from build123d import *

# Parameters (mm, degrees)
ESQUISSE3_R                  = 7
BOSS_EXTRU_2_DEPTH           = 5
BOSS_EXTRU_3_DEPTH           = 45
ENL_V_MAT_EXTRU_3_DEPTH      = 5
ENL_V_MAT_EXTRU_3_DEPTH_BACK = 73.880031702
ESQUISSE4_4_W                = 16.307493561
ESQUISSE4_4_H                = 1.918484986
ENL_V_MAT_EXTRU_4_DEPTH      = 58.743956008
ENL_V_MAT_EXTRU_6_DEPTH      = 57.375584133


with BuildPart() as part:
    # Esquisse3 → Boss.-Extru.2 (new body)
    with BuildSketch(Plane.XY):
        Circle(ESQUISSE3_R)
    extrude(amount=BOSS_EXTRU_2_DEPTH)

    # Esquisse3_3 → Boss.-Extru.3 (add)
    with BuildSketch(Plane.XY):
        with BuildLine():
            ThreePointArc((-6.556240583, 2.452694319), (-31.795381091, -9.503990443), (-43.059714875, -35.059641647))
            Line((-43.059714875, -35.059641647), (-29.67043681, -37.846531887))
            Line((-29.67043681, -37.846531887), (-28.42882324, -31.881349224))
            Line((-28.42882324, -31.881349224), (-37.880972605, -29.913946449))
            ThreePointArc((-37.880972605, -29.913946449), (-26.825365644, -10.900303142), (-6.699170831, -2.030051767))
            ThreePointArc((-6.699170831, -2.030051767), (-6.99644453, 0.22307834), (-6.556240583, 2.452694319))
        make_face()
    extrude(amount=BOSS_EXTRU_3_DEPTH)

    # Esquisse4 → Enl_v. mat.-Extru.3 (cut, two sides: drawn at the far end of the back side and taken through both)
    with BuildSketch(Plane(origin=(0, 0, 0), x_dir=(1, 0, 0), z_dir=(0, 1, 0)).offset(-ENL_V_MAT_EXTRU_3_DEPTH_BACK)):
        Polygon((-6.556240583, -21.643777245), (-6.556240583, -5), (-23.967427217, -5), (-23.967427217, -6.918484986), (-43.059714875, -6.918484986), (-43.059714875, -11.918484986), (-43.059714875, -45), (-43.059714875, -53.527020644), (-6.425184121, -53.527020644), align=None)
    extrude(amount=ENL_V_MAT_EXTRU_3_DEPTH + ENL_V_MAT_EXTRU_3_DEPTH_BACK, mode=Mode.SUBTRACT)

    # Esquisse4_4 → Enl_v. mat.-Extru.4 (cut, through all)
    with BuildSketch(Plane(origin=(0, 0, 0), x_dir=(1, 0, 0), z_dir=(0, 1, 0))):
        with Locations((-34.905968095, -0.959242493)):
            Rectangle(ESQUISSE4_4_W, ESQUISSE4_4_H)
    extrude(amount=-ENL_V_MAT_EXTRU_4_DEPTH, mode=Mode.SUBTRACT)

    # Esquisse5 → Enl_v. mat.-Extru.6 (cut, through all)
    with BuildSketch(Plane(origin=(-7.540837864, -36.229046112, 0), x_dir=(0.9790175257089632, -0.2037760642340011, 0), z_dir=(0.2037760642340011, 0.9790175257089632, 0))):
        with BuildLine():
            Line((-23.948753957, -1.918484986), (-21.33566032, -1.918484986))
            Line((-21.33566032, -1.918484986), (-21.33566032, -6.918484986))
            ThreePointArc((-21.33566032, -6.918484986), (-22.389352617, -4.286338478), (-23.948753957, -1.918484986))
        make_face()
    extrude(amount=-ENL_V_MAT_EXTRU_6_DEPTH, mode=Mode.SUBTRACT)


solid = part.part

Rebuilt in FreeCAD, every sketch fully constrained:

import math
import FreeCAD as App
import Part
import Sketcher
Q = App.Units.Quantity

doc = App.newDocument("Part")
params = doc.addObject("Spreadsheet::Sheet", "Params")
for row, (alias, value) in enumerate([
    ("sketch1_diameter", "14 mm"),
    ("pad1_length", "5 mm"),
    ("sketch2_radius", "40 mm"),
    ("sketch2_radius2", "7 mm"),
    ("pad2_length", "45 mm"),
    ("sketch5_height", "5 mm"),
], start=1):
    params.set(f"A{row}", alias)
    params.set(f"B{row}", "=" + value)
    params.setAlias(f"B{row}", alias)

body = doc.addObject("PartDesign::Body", "Body")

# Sketch on XY plane
sketch1 = doc.addObject("Sketcher::SketchObject", "Sketch")
body.addObject(sketch1)
sketch1.AttachmentSupport = (doc.XY_Plane, [""])
sketch1.MapMode = "FlatFace"
sketch1.addGeometry(Part.Circle(App.Vector(0, 0, 0), App.Vector(0, 0, 1), 7), False)
sketch1.addConstraint([
    Sketcher.Constraint("Coincident", 0, 3, -1, 1),
    Sketcher.Constraint("Diameter", 0, Q("14 mm")),
])
sketch1.setExpression("Constraints[1]", "Params.sketch1_diameter")
pad1 = doc.addObject("PartDesign::Pad", "Pad")
body.addObject(pad1)
pad1.Profile = sketch1
pad1.setExpression("Length", "Params.pad1_length")

# Sketch on XY plane
sketch2 = doc.addObject("Sketcher::SketchObject", "Sketch001")
body.addObject(sketch2)
sketch2.AttachmentSupport = (doc.XY_Plane, [""])
sketch2.MapMode = "FlatFace"
sketch2.addGeometry([
    Part.ArcOfCircle(Part.Circle(App.Vector(-3.1, -37.4, 0), App.Vector(0, 0, 1), 40), math.radians(95), math.radians(177)),  # 0
    Part.LineSegment(App.Vector(-43.1, -35.1, 0), App.Vector(-29.7, -37.8, 0)),  # 1
    Part.LineSegment(App.Vector(-29.7, -37.8, 0), App.Vector(-28.4, -31.9, 0)),  # 2
    Part.LineSegment(App.Vector(-28.4, -31.9, 0), App.Vector(-37.9, -29.9, 0)),  # 3
    Part.ArcOfCircle(Part.Circle(App.Vector(-3.1, -37.4, 0), App.Vector(0, 0, 1), 35.5), math.radians(96), math.radians(168)),  # 4
    Part.ArcOfCircle(Part.Circle(App.Vector(0, 0, 0), App.Vector(0, 0, 1), 7), math.radians(159), math.radians(197)),  # 5
], False)
sketch2.addConstraint([
    Sketcher.Constraint("Coincident", 0, 2, 1, 1),
    Sketcher.Constraint("Coincident", 1, 2, 2, 1),
    Sketcher.Constraint("Coincident", 2, 2, 3, 1),
    Sketcher.Constraint("Coincident", 3, 2, 4, 2),
    Sketcher.Constraint("Coincident", 4, 1, 5, 2),
    Sketcher.Constraint("Coincident", 5, 1, 0, 1),
    Sketcher.Constraint("Coincident", 5, 3, -1, 1),
    Sketcher.Constraint("Coincident", 4, 3, 0, 3),
    Sketcher.Constraint("Perpendicular", 1, 2),
    Sketcher.Constraint("Perpendicular", 2, 3),
    Sketcher.Constraint("Radius", 0, Q("40 mm")),
    Sketcher.Constraint("Radius", 5, Q("7 mm")),
    Sketcher.Constraint("Radius", 4, Q("35.549895 mm")),
    Sketcher.Constraint("DistanceY", 4, 3, 3, 2, Q("7.486199 mm")),
    Sketcher.Constraint("DistanceX", 3, 2, 4, 1, Q("31.181802 mm")),
    Sketcher.Constraint("Distance", 1, Q("13.676239 mm")),
    Sketcher.Constraint("Distance", 2, Q("6.093029 mm")),
    Sketcher.Constraint("Distance", 3, Q("9.654729 mm")),
    Sketcher.Constraint("DistanceX", 0, 3, -1, 1, Q("3.128248 mm")),
])
sketch2.setExpression("Constraints[10]", "Params.sketch2_radius")
sketch2.setExpression("Constraints[11]", "Params.sketch2_radius2")
pad2 = doc.addObject("PartDesign::Pad", "Pad001")
body.addObject(pad2)
pad2.Profile = sketch2
pad2.setExpression("Length", "Params.pad2_length")

# Sketch on XZ plane
sketch3 = doc.addObject("Sketcher::SketchObject", "Sketch002")
body.addObject(sketch3)
sketch3.AttachmentSupport = (doc.XZ_Plane, [""])
sketch3.MapMode = "FlatFace"
sketch3.addGeometry([
    Part.LineSegment(App.Vector(-6.6, 21.6, 0), App.Vector(-6.6, 5, 0)),  # 0
    Part.LineSegment(App.Vector(-6.6, 5, 0), App.Vector(-24, 5, 0)),  # 1
    Part.LineSegment(App.Vector(-24, 5, 0), App.Vector(-24, 6.9, 0)),  # 2
    Part.LineSegment(App.Vector(-24, 6.9, 0), App.Vector(-43.1, 6.9, 0)),  # 3
    Part.LineSegment(App.Vector(-43.1, 6.9, 0), App.Vector(-43.1, 53.5, 0)),  # 4
    Part.LineSegment(App.Vector(-43.1, 53.5, 0), App.Vector(-6.4, 53.5, 0)),  # 5
    Part.LineSegment(App.Vector(-6.4, 53.5, 0), App.Vector(-6.6, 21.6, 0)),  # 6
], False)
sketch3.addConstraint([
    Sketcher.Constraint("Coincident", 0, 2, 1, 1),
    Sketcher.Constraint("Coincident", 1, 2, 2, 1),
    Sketcher.Constraint("Coincident", 2, 2, 3, 1),
    Sketcher.Constraint("Coincident", 3, 2, 4, 1),
    Sketcher.Constraint("Coincident", 4, 2, 5, 1),
    Sketcher.Constraint("Coincident", 5, 2, 6, 1),
    Sketcher.Constraint("Coincident", 6, 2, 0, 1),
    Sketcher.Constraint("Vertical", 0),
    Sketcher.Constraint("Horizontal", 1),
    Sketcher.Constraint("Vertical", 2),
    Sketcher.Constraint("Horizontal", 3),
    Sketcher.Constraint("Vertical", 4),
    Sketcher.Constraint("Horizontal", 5),
    Sketcher.Constraint("DistanceY", -1, 1, 0, 2, Q("5 mm")),
    Sketcher.Constraint("DistanceX", 5, 1, 5, 2, Q("36.634531 mm")),
    Sketcher.Constraint("DistanceX", 1, 2, 1, 1, Q("17.411187 mm")),
    Sketcher.Constraint("DistanceX", 3, 2, 3, 1, Q("19.092288 mm")),
    Sketcher.Constraint("DistanceY", 0, 2, 0, 1, Q("16.643777 mm")),
    Sketcher.Constraint("DistanceY", 2, 1, 2, 2, Q("1.918485 mm")),
    Sketcher.Constraint("DistanceY", 4, 1, 4, 2, Q("46.608536 mm")),
    Sketcher.Constraint("DistanceX", 0, 2, -1, 1, Q("6.556241 mm")),
])
pocket1 = doc.addObject("PartDesign::Pocket", "Pocket")
body.addObject(pocket1)
pocket1.Profile = sketch3
pocket1.Type = "ThroughAll"
pocket1.Midplane = True

# Sketch on XZ plane
sketch4 = doc.addObject("Sketcher::SketchObject", "Sketch003")
body.addObject(sketch4)
sketch4.AttachmentSupport = (doc.XZ_Plane, [""])
sketch4.MapMode = "FlatFace"
sketch4.addGeometry([
    Part.LineSegment(App.Vector(-43.1, 0, 0), App.Vector(-43.1, 1.9, 0)),
    Part.LineSegment(App.Vector(-43.1, 1.9, 0), App.Vector(-26.8, 1.9, 0)),
    Part.LineSegment(App.Vector(-26.8, 1.9, 0), App.Vector(-26.8, 0, 0)),
    Part.LineSegment(App.Vector(-26.8, 0, 0), App.Vector(-43.1, 0, 0)),
], False)
sketch4.addConstraint([
    Sketcher.Constraint("Coincident", 0, 2, 1, 1),
    Sketcher.Constraint("Coincident", 1, 2, 2, 1),
    Sketcher.Constraint("Coincident", 2, 2, 3, 1),
    Sketcher.Constraint("Coincident", 3, 2, 0, 1),
    Sketcher.Constraint("Vertical", 0),
    Sketcher.Constraint("Horizontal", 1),
    Sketcher.Constraint("Vertical", 2),
    Sketcher.Constraint("Horizontal", 3),
    Sketcher.Constraint("PointOnObject", 2, 2, -1),
    Sketcher.Constraint("DistanceX", 1, 1, 1, 2, Q("16.307494 mm")),
    Sketcher.Constraint("DistanceY", 0, 1, 0, 2, Q("1.918485 mm")),
    Sketcher.Constraint("DistanceX", 1, 2, -1, 1, Q("26.752221 mm")),
])
pocket2 = doc.addObject("PartDesign::Pocket", "Pocket001")
body.addObject(pocket2)
pocket2.Profile = sketch4
pocket2.Type = "ThroughAll"
pocket2.Reversed = True

# Sketch on an angled plane
sketch5 = doc.addObject("Sketcher::SketchObject", "Sketch004")
body.addObject(sketch5)
sketch5.Placement = App.Placement(App.Vector(-7.540838, -36.229046, 0), App.Rotation(App.Vector(0.979017526, -0.203776064, 0), App.Vector(0, 0, -1), App.Vector(0.203776064, 0.979017526, 0), "ZXY"))
sketch5.addGeometry([
    Part.LineSegment(App.Vector(-21.3, -1.9, 0), App.Vector(-23.9, -1.9, 0)),
    Part.ArcOfCircle(Part.Circle(App.Vector(-34.9, -10.8, 0), App.Vector(0, 0, 1), 14.1), math.radians(16), math.radians(39)),
    Part.LineSegment(App.Vector(-21.3, -6.9, 0), App.Vector(-21.3, -1.9, 0)),
], False)
sketch5.addConstraint([
    Sketcher.Constraint("Coincident", 0, 2, 1, 2),
    Sketcher.Constraint("Coincident", 1, 1, 2, 1),
    Sketcher.Constraint("Coincident", 2, 2, 0, 1),
    Sketcher.Constraint("Horizontal", 0),
    Sketcher.Constraint("Vertical", 2),
    Sketcher.Constraint("DistanceY", 2, 1, 2, 2, Q("5 mm")),
    Sketcher.Constraint("Radius", 1, Q("14.087562 mm")),
    Sketcher.Constraint("DistanceX", 0, 2, 0, 1, Q("2.613094 mm")),
    Sketcher.Constraint("DistanceX", 1, 1, -1, 1, Q("21.33566 mm")),
    Sketcher.Constraint("DistanceY", 1, 3, -1, 1, Q("10.811397 mm")),
])
sketch5.setExpression("Constraints[5]", "Params.sketch5_height")
pocket3 = doc.addObject("PartDesign::Pocket", "Pocket002")
body.addObject(pocket3)
pocket3.Profile = sketch5
pocket3.Type = "ThroughAll"

doc.recompute()
